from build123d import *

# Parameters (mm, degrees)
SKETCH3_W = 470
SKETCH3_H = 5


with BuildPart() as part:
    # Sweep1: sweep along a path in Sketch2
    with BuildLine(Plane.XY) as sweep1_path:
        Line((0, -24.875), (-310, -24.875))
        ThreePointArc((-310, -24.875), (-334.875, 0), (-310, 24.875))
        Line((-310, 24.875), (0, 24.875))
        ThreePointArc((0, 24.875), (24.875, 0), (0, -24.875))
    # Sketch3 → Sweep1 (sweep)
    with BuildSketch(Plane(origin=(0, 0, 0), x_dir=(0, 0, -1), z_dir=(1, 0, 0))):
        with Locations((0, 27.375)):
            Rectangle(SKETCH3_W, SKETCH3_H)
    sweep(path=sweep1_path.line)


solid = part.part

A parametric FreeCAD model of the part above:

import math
import FreeCAD as App
import Part
import Sketcher
Q = App.Units.Quantity

doc = App.newDocument("Part")
body = doc.addObject("PartDesign::Body", "Body")

# Sketch on YZ plane
sketch1 = body.newObject("Sketcher::SketchObject", "Sketch")
sketch1.AttachmentSupport = (doc.getObject("YZ_Plane"), [""])
sketch1.MapMode = "FlatFace"
sketch1.addGeometry([
    Part.LineSegment(App.Vector(30, 235, 0), App.Vector(25, 235, 0)),
    Part.LineSegment(App.Vector(25, 235, 0), App.Vector(25, -235, 0)),
    Part.LineSegment(App.Vector(25, -235, 0), App.Vector(30, -235, 0)),
    Part.LineSegment(App.Vector(30, -235, 0), App.Vector(30, 235, 0)),
], False)
sketch1.addConstraint([
    Sketcher.Constraint("Coincident", 0, 2, 1, 1),
    Sketcher.Constraint("Coincident", 1, 2, 2, 1),
    Sketcher.Constraint("Coincident", 2, 2, 3, 1),
    Sketcher.Constraint("Coincident", 3, 2, 0, 1),
    Sketcher.Constraint("Horizontal", 0),
    Sketcher.Constraint("Vertical", 1),
    Sketcher.Constraint("Horizontal", 2),
    Sketcher.Constraint("Vertical", 3),
    Sketcher.Constraint("DistanceX", 0, 2, 0, 1, Q("5 mm")),
    Sketcher.Constraint("DistanceY", 1, 2, 1, 1, Q("470 mm")),
    Sketcher.Constraint("DistanceY", -1, 1, 0, 2, Q("235 mm")),
    Sketcher.Constraint("DistanceX", -1, 1, 0, 2, Q("24.875 mm")),
])

# Sketch on XY plane
sketch2 = body.newObject("Sketcher::SketchObject", "Sketch001")
sketch2.AttachmentSupport = (doc.getObject("XY_Plane"), [""])
sketch2.MapMode = "FlatFace"
sketch2.addGeometry([
    Part.LineSegment(App.Vector(0, -25, 0), App.Vector(-310, -25, 0)),
    Part.ArcOfCircle(Part.Circle(App.Vector(-310, 0, 0), App.Vector(0, 0, 1), 25), math.radians(90), math.radians(270)),
    Part.LineSegment(App.Vector(-310, 25, 0), App.Vector(0, 25, 0)),
    Part.ArcOfCircle(Part.Circle(App.Vector(0, 0, 0), App.Vector(0, 0, 1), 25), math.radians(-90), math.radians(90)),
], False)
sketch2.addConstraint([
    Sketcher.Constraint("Tangent", 0, 2, 1, 2),
    Sketcher.Constraint("Tangent", 1, 1, 2, 1),
    Sketcher.Constraint("Tangent", 2, 2, 3, 2),
    Sketcher.Constraint("Tangent", 3, 1, 0, 1),
    Sketcher.Constraint("Horizontal", 0),
    Sketcher.Constraint("Horizontal", 2),
    Sketcher.Constraint("Coincident", 3, 3, -1, 1),
    Sketcher.Constraint("DistanceX", 0, 2, 0, 1, Q("310 mm")),
    Sketcher.Constraint("Radius", 1, Q("24.875 mm")),
])
doc.recompute()

additivepipe = body.newObject("PartDesign::AdditivePipe", "AdditivePipe")
additivepipe.Profile = sketch1
additivepipe.Spine = (sketch2, ["Edge1", "Edge2", "Edge3", "Edge4"])

doc.recompute()
